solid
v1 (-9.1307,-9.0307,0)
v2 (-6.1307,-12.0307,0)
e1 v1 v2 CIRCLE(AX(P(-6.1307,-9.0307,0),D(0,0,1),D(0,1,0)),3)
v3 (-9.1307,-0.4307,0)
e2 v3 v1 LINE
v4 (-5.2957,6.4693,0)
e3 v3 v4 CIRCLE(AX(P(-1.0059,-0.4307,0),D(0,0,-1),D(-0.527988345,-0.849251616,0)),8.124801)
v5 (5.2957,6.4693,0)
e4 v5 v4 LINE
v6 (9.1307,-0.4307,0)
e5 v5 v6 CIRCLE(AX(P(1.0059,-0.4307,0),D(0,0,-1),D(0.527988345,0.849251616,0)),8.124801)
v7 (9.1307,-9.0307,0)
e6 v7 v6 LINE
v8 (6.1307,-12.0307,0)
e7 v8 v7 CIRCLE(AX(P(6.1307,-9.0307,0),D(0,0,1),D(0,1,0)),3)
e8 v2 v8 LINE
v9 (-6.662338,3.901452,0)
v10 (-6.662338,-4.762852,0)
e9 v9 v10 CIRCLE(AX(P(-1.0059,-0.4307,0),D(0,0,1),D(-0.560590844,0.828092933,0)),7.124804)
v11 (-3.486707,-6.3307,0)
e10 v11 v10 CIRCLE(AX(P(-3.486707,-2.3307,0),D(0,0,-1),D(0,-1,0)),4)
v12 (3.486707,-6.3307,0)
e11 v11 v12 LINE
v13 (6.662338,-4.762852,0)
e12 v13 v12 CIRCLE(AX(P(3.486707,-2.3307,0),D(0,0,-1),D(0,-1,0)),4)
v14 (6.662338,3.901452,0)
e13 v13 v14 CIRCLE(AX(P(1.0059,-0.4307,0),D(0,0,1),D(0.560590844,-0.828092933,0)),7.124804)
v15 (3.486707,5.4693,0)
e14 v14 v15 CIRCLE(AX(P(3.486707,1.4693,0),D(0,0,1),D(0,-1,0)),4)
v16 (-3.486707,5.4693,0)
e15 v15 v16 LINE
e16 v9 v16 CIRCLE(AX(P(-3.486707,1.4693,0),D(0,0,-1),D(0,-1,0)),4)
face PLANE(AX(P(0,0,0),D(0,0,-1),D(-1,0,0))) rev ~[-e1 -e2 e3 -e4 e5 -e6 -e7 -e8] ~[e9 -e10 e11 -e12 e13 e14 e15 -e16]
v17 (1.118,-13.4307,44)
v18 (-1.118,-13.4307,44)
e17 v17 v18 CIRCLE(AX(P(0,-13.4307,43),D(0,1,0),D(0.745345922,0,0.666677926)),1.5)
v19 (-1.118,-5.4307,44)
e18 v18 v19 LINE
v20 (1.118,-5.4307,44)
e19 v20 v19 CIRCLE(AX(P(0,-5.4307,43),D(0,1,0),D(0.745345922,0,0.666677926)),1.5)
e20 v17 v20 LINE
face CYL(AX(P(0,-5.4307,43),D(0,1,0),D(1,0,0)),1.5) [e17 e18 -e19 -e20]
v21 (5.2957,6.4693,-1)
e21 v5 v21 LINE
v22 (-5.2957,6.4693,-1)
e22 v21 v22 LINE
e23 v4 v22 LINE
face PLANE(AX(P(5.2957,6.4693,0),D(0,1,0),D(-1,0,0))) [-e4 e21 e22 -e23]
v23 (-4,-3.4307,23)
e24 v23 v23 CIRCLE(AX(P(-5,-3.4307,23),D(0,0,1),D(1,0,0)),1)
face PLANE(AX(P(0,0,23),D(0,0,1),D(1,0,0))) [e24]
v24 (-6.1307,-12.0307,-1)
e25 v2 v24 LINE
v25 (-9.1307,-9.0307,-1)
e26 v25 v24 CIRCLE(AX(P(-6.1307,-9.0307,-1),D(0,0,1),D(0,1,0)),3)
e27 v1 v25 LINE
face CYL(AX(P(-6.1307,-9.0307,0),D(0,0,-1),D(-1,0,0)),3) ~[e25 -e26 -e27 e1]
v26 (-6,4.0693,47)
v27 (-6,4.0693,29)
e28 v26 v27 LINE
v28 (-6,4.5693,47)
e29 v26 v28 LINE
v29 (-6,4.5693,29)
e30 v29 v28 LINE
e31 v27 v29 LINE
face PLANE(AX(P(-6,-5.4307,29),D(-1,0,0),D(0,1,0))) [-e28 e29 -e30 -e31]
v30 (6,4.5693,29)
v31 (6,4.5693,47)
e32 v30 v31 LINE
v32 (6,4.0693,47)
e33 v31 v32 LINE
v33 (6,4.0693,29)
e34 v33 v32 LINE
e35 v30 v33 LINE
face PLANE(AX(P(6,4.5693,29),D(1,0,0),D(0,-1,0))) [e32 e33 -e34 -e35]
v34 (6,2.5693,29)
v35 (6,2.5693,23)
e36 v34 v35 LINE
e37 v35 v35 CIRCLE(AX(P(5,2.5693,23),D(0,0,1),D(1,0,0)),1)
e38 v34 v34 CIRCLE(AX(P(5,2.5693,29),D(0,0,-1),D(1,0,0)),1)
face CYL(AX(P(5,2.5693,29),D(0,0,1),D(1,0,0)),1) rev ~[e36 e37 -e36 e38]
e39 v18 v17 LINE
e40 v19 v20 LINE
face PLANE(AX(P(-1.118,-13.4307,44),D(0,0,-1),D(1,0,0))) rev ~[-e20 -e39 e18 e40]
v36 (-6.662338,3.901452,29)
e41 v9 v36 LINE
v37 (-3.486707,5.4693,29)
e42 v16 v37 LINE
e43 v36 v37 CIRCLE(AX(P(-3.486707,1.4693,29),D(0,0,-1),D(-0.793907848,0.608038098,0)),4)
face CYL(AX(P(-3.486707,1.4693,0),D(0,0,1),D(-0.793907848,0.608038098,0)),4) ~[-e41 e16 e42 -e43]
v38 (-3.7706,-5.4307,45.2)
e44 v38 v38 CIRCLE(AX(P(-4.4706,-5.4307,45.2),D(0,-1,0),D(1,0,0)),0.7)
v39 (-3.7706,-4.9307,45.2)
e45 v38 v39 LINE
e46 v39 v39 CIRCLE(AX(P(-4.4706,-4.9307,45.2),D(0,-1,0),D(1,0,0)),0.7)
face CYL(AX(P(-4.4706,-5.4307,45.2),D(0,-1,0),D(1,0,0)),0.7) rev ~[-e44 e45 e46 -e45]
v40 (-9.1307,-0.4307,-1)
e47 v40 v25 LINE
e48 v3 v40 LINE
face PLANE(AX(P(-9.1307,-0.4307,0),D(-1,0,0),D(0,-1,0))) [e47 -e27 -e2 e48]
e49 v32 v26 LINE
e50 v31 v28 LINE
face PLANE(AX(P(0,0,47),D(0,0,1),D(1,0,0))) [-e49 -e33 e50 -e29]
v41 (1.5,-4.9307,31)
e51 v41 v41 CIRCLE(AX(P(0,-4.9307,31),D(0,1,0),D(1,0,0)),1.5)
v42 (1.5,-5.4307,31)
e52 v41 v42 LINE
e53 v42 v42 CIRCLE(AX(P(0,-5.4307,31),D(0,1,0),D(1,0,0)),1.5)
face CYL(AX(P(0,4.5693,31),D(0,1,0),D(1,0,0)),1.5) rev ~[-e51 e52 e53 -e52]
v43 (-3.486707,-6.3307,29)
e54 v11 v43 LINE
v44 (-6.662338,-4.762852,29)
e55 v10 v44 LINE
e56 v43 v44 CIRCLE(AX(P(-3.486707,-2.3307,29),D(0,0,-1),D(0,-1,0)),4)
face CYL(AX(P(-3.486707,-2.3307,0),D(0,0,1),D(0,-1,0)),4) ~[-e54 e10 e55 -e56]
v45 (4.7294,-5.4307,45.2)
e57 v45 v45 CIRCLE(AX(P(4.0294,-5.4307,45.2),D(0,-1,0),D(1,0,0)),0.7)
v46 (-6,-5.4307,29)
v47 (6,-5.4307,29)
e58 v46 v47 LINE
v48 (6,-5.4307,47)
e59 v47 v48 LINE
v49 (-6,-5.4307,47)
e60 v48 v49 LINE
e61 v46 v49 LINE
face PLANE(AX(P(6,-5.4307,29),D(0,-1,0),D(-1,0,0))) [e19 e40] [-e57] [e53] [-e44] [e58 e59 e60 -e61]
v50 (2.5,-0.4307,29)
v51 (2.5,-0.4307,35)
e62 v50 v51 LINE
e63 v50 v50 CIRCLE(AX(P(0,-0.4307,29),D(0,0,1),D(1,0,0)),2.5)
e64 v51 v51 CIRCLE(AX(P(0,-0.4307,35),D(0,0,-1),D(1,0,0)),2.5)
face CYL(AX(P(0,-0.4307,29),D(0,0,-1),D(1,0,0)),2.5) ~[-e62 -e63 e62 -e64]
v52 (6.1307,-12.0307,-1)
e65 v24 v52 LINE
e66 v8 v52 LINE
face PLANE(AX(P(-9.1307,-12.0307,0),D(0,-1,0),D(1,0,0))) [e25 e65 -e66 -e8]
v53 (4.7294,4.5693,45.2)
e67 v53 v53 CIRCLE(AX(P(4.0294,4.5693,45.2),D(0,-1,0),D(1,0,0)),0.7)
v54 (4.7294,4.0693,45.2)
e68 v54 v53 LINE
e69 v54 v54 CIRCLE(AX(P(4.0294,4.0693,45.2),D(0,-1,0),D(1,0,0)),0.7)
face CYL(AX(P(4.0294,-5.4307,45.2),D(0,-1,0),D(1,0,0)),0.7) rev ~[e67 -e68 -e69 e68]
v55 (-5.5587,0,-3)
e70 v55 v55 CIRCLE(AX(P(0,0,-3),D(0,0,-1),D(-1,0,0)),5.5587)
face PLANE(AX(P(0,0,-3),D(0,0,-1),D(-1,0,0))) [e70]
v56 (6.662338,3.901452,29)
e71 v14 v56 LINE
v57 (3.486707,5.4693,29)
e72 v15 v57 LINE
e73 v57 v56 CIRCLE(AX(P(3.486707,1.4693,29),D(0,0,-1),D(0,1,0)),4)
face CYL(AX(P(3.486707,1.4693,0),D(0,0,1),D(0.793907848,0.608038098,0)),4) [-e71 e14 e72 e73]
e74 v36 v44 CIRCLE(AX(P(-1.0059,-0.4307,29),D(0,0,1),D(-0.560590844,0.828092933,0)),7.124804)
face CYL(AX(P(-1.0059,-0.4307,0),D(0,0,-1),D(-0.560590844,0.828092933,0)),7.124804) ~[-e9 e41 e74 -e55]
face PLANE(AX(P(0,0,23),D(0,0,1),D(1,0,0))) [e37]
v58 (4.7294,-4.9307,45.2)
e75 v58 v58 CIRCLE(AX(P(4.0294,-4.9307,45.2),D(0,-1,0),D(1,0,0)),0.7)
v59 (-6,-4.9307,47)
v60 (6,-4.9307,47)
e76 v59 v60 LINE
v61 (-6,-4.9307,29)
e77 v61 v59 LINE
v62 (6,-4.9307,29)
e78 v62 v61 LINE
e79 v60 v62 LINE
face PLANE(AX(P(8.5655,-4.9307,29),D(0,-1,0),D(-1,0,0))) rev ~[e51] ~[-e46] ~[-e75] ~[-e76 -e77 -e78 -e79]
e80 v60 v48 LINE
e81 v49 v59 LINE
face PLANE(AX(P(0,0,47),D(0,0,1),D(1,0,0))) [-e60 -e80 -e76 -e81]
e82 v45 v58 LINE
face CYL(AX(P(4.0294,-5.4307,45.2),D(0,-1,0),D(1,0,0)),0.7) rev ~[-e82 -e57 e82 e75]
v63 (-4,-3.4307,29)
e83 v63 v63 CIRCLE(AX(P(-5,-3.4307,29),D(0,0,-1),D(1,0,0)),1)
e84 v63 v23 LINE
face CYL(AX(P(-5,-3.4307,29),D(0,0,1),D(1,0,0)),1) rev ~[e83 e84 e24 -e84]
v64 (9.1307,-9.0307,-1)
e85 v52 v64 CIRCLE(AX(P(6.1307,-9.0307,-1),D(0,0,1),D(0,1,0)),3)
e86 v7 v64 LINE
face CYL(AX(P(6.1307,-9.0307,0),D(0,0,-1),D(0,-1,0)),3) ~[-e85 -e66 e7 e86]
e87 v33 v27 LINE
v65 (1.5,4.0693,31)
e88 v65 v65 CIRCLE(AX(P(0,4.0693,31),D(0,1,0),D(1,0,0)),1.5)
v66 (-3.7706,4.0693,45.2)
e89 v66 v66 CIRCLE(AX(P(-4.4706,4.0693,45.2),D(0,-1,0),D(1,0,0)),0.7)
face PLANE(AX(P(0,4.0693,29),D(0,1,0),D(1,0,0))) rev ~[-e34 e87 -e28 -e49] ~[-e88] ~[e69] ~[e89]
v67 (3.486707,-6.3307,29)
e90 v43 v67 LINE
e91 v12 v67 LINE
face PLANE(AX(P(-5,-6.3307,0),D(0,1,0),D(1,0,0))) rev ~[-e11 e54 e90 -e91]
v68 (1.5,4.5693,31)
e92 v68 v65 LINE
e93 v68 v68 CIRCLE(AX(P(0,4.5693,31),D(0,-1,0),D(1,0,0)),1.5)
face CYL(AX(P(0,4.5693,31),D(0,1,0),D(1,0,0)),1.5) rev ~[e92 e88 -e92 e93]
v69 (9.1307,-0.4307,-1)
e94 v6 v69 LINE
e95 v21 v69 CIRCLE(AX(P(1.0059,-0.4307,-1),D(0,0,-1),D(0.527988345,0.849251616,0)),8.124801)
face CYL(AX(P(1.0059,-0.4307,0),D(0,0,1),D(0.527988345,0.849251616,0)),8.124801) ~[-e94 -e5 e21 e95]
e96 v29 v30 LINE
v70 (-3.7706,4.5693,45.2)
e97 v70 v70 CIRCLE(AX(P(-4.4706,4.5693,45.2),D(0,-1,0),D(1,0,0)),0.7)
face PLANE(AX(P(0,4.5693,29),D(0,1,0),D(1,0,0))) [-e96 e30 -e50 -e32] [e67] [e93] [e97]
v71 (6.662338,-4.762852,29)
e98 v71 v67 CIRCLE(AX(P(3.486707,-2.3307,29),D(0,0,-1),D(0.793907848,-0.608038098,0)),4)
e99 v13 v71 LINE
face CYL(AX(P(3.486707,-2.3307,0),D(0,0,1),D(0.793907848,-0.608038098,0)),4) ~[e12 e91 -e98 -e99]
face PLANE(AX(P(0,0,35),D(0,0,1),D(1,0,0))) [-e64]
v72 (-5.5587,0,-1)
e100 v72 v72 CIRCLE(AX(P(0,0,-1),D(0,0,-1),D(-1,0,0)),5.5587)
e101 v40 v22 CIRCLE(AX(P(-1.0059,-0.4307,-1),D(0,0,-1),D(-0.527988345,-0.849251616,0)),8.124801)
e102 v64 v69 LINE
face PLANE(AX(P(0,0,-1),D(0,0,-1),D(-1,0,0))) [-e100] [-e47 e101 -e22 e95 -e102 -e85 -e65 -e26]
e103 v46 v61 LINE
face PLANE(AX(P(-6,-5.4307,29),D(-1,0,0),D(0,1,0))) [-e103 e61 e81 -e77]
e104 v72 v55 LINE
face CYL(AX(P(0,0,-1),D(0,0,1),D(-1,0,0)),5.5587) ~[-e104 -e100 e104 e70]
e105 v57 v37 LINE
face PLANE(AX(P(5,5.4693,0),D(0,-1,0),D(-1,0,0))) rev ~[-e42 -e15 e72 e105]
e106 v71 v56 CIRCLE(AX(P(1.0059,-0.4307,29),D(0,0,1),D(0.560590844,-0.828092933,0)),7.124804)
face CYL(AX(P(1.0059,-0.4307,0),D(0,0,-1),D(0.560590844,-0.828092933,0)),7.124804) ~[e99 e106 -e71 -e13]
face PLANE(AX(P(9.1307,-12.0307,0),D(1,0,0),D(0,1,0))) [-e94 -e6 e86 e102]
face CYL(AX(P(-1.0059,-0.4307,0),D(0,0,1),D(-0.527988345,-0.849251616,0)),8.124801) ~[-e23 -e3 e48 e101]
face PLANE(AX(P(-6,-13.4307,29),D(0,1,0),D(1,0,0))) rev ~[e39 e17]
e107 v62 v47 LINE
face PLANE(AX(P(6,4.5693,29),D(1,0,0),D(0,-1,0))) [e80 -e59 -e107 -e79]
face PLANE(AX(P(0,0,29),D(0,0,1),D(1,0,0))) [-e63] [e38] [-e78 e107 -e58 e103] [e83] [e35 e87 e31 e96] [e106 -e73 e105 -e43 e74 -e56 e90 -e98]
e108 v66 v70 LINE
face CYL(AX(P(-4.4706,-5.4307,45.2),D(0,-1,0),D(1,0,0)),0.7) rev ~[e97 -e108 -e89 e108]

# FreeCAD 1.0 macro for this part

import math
import FreeCAD as App
import Part
import Sketcher

V = App.Vector
Q = App.Units.Quantity


def edges_at(feature, points):
    """Names of the edges that pass closest to the given points."""
    edges = feature.Shape.Edges
    near = lambda p: min(range(len(edges)), key=lambda i: edges[i].distToShape(Part.Vertex(*p))[0])
    return sorted({f"Edge{near(p) + 1}" for p in points})


def add_polygon(sketch, points):
    """Adds a closed chain of lines whose ends are joined by coincident constraints."""
    first, n = sketch.GeometryCount, len(points)
    for a, b in zip(points, points[1:] + points[:1]):
        sketch.addGeometry(Part.LineSegment(App.Vector(*a, 0), App.Vector(*b, 0)), False)
    for i in range(n):
        sketch.addConstraint(Sketcher.Constraint("Coincident", first + i, 2, first + (i + 1) % n, 1))

doc = App.newDocument("Part")
body = doc.addObject("PartDesign::Body", "Body")

# Sketch on XY plane
sketch1 = body.newObject("Sketcher::SketchObject", "Sketch")
sketch1.AttachmentSupport = (doc.getObject("XY_Plane"), [""])
sketch1.MapMode = "FlatFace"
sketch1.addGeometry(Part.LineSegment(V(5, 5.4693, 0), V(-5, 5.4693, 0)), False)
sketch1.addGeometry(Part.ArcOfCircle(Part.Circle(V(-1.0059, -0.4307, 0), V(0, 0, 1), 7.124804), math.radians(124.096668), math.radians(235.903332)), False)
sketch1.addGeometry(Part.LineSegment(V(-5, -6.3307, 0), V(5, -6.3307, 0)), False)
sketch1.addGeometry(Part.ArcOfCircle(Part.Circle(V(1.0059, -0.4307, 0), V(0, 0, 1), 7.124804), math.radians(-55.903332), math.radians(55.903332)), False)
sketch1.addConstraint(Sketcher.Constraint("Coincident", 0, 2, 1, 1))
sketch1.addConstraint(Sketcher.Constraint("Coincident", 1, 2, 2, 1))
sketch1.addConstraint(Sketcher.Constraint("Coincident", 2, 2, 3, 1))
sketch1.addConstraint(Sketcher.Constraint("Coincident", 3, 2, 0, 1))
sketch1.addConstraint(Sketcher.Constraint("Horizontal", 0))
sketch1.addConstraint(Sketcher.Constraint("Horizontal", 2))
sketch1.addConstraint(Sketcher.Constraint("Equal", 1, 3))
sketch1.addConstraint(Sketcher.Constraint("Symmetric", 1, 3, 3, 3, -2))
sketch1.addConstraint(Sketcher.Constraint("Vertical", 0, 2, 1, 2))
sketch1.addConstraint(Sketcher.Constraint("DistanceX", 0, 2, 0, 1, Q("10 mm")))
sketch1.addConstraint(Sketcher.Constraint("DistanceY", 1, 2, 0, 2, Q("11.8 mm")))
sketch1.addConstraint(Sketcher.Constraint("Radius", 1, Q("7.1248 mm")))
sketch1.addConstraint(Sketcher.Constraint("DistanceY", 1, 3, -1, 1, Q("0.4307 mm")))
pad1 = body.newObject("PartDesign::Pad", "Pad")
pad1.Profile = sketch1
pad1.Length = 29

# Sketch on XY plane
sketch2 = body.newObject("Sketcher::SketchObject", "Sketch001")
sketch2.AttachmentSupport = (doc.getObject("XY_Plane"), [""])
sketch2.MapMode = "FlatFace"
sketch2.AttachmentOffset = App.Placement(V(0, 0, 29), App.Rotation())
add_polygon(sketch2, [(6, -5.4307), (6, 4.5693), (-6, 4.5693), (-6, -5.4307)])  # lines 0-3
sketch2.addConstraint(Sketcher.Constraint("Vertical", 0))
sketch2.addConstraint(Sketcher.Constraint("Horizontal", 1))
sketch2.addConstraint(Sketcher.Constraint("Vertical", 2))
sketch2.addConstraint(Sketcher.Constraint("Horizontal", 3))
sketch2.addConstraint(Sketcher.Constraint("DistanceX", 1, 2, 1, 1, Q("12 mm")))
sketch2.addConstraint(Sketcher.Constraint("DistanceY", 0, 1, 0, 2, Q("10 mm")))
sketch2.addConstraint(Sketcher.Constraint("DistanceX", -1, 1, 0, 2, Q("6 mm")))
sketch2.addConstraint(Sketcher.Constraint("DistanceY", -1, 1, 0, 2, Q("4.5693 mm")))
pad2 = body.newObject("PartDesign::Pad", "Pad001")
pad2.Profile = sketch2
pad2.Length = 18

# Sketch on XY plane
sketch3 = body.newObject("Sketcher::SketchObject", "Sketch002")
sketch3.AttachmentSupport = (doc.getObject("XY_Plane"), [""])
sketch3.MapMode = "FlatFace"
sketch3.addGeometry(Part.ArcOfCircle(Part.Circle(V(-1.0059, -0.4307, 0), V(0, 0, 1), 8.124801), math.radians(121.869636), math.radians(180)), False)
sketch3.addGeometry(Part.LineSegment(V(-5.2957, 6.4693, 0), V(5.2957, 6.4693, 0)), False)
sketch3.addGeometry(Part.ArcOfCircle(Part.Circle(V(1.0059, -0.4307, 0), V(0, 0, 1), 8.124801), math.radians(0), math.radians(58.130364)), False)
sketch3.addGeometry(Part.LineSegment(V(9.1307, -0.4307, 0), V(9.1307, -12.0307, 0)), False)
sketch3.addGeometry(Part.LineSegment(V(9.1307, -12.0307, 0), V(-9.1307, -12.0307, 0)), False)
sketch3.addGeometry(Part.LineSegment(V(-9.1307, -12.0307, 0), V(-9.1307, -0.4307, 0)), False)
sketch3.addConstraint(Sketcher.Constraint("Coincident", 0, 1, 1, 1))
sketch3.addConstraint(Sketcher.Constraint("Coincident", 1, 2, 2, 2))
sketch3.addConstraint(Sketcher.Constraint("Tangent", 2, 1, 3, 1))
sketch3.addConstraint(Sketcher.Constraint("Coincident", 3, 2, 4, 1))
sketch3.addConstraint(Sketcher.Constraint("Coincident", 4, 2, 5, 1))
sketch3.addConstraint(Sketcher.Constraint("Tangent", 5, 2, 0, 2))
sketch3.addConstraint(Sketcher.Constraint("Horizontal", 1))
sketch3.addConstraint(Sketcher.Constraint("Vertical", 3))
sketch3.addConstraint(Sketcher.Constraint("Horizontal", 4))
sketch3.addConstraint(Sketcher.Constraint("Vertical", 5))
sketch3.addConstraint(Sketcher.Constraint("Equal", 0, 2))
sketch3.addConstraint(Sketcher.Constraint("Symmetric", 0, 3, 2, 3, -2))
sketch3.addConstraint(Sketcher.Constraint("DistanceY", 3, 2, 1, 2, Q("18.5 mm")))
sketch3.addConstraint(Sketcher.Constraint("DistanceY", 3, 2, 3, 1, Q("11.6 mm")))
sketch3.addConstraint(Sketcher.Constraint("Radius", 0, Q("8.1248 mm")))
sketch3.addConstraint(Sketcher.Constraint("DistanceX", 1, 1, 1, 2, Q("10.5914 mm")))
sketch3.addConstraint(Sketcher.Constraint("DistanceY", 0, 3, -1, 1, Q("0.4307 mm")))
pad3 = body.newObject("PartDesign::Pad", "Pad002")
pad3.Profile = sketch3
pad3.Length = 1
pad3.Reversed = True

# Sketch on XY plane
sketch4 = body.newObject("Sketcher::SketchObject", "Sketch003")
sketch4.AttachmentSupport = (doc.getObject("XY_Plane"), [""])
sketch4.MapMode = "FlatFace"
sketch4.AttachmentOffset = App.Placement(V(0, 0, -1), App.Rotation())
sketch4.addGeometry(Part.Circle(V(0, 0, 0), V(0, 0, 1), 5.5587), False)
sketch4.addConstraint(Sketcher.Constraint("Coincident", 0, 3, -1, 1))
sketch4.addConstraint(Sketcher.Constraint("Diameter", 0, Q("11.1174 mm")))
pad4 = body.newObject("PartDesign::Pad", "Pad003")
pad4.Profile = sketch4
pad4.Length = 2
pad4.Reversed = True

# Sketch on XZ plane
sketch5 = body.newObject("Sketcher::SketchObject", "Sketch004")
sketch5.AttachmentSupport = (doc.getObject("XZ_Plane"), [""])
sketch5.MapMode = "FlatFace"
sketch5.AttachmentOffset = App.Placement(V(0, 0, 5.4307), App.Rotation())
sketch5.addGeometry(Part.Circle(V(0, 43, 0), V(0, 0, 1), 1.5), False)
sketch5.addConstraint(Sketcher.Constraint("PointOnObject", 0, 3, -2))
sketch5.addConstraint(Sketcher.Constraint("Diameter", 0, Q("3 mm")))
sketch5.addConstraint(Sketcher.Constraint("DistanceY", -1, 1, 0, 3, Q("43 mm")))
pad5 = body.newObject("PartDesign::Pad", "Pad004")
pad5.Profile = sketch5
pad5.Length = 8

# Sketch on XZ plane
sketch6 = body.newObject("Sketcher::SketchObject", "Sketch005")
sketch6.AttachmentSupport = (doc.getObject("XZ_Plane"), [""])
sketch6.MapMode = "FlatFace"
sketch6.AttachmentOffset = App.Placement(V(0, 0, 13.4307), App.Rotation())
sketch6.addGeometry(Part.LineSegment(V(-1.118, 44, 0), V(1.118, 44, 0)), False)
sketch6.addGeometry(Part.ArcOfCircle(Part.Circle(V(0, 43, 0), V(0, 0, 1), 1.5), math.radians(41.81118), math.radians(138.18882)), False)
sketch6.addConstraint(Sketcher.Constraint("Coincident", 0, 1, 1, 2))
sketch6.addConstraint(Sketcher.Constraint("Coincident", 1, 1, 0, 2))
sketch6.addConstraint(Sketcher.Constraint("Horizontal", 0))
sketch6.addConstraint(Sketcher.Constraint("PointOnObject", 1, 3, -2))
sketch6.addConstraint(Sketcher.Constraint("Radius", 1, Q("1.5 mm")))
sketch6.addConstraint(Sketcher.Constraint("DistanceY", -1, 1, 1, 3, Q("43 mm")))
sketch6.addConstraint(Sketcher.Constraint("DistanceY", -1, 1, 0, 1, Q("44 mm")))
pocket1 = body.newObject("PartDesign::Pocket", "Pocket")
pocket1.Profile = sketch6
pocket1.Length = 8
doc.recompute()

fillet = body.newObject("PartDesign::Fillet", "Fillet")
fillet.Base = (pocket1, edges_at(pocket1, [
    (-5, 5.469, 14.5),
    (5, 5.469, 14.5),
    (-5, -6.331, 14.5),
    (5, -6.331, 14.5),
]))
fillet.Radius = 4
doc.recompute()

fillet2 = body.newObject("PartDesign::Fillet", "Fillet001")
fillet2.Base = (fillet, edges_at(fillet, [(-9.131, -12.031, -0.5), (9.131, -12.031, -0.5)]))
fillet2.Radius = 3

# Sketch on XZ plane
sketch7 = body.newObject("Sketcher::SketchObject", "Sketch006")
sketch7.AttachmentSupport = (doc.getObject("XZ_Plane"), [""])
sketch7.MapMode = "FlatFace"
sketch7.AttachmentOffset = App.Placement(V(0, 0, 5.4307), App.Rotation())
sketch7.addGeometry(Part.Circle(V(4.0294, 45.2, 0), V(0, 0, 1), 0.7), False)
sketch7.addGeometry(Part.Circle(V(-4.4706, 45.2, 0), V(0, 0, 1), 0.7), False)
sketch7.addConstraint(Sketcher.Constraint("Equal", 0, 1))
sketch7.addConstraint(Sketcher.Constraint("Horizontal", 0, 3, 1, 3))
sketch7.addConstraint(Sketcher.Constraint("Diameter", 0, Q("1.4 mm")))
sketch7.addConstraint(Sketcher.Constraint("DistanceX", 1, 3, 0, 3, Q("8.5 mm")))
sketch7.addConstraint(Sketcher.Constraint("DistanceY", -1, 1, 0, 3, Q("45.2 mm")))
sketch7.addConstraint(Sketcher.Constraint("DistanceX", -1, 1, 0, 3, Q("4.0294 mm")))
pocket2 = body.newObject("PartDesign::Pocket", "Pocket001")
pocket2.Profile = sketch7
pocket2.Length = 11.75

# Sketch on XZ plane
sketch8 = body.newObject("Sketcher::SketchObject", "Sketch007")
sketch8.AttachmentSupport = (doc.getObject("XZ_Plane"), [""])
sketch8.MapMode = "FlatFace"
sketch8.AttachmentOffset = App.Placement(V(0, 0, -4.5693), App.Rotation())
sketch8.addGeometry(Part.Circle(V(0, 31, 0), V(0, 0, 1), 1.5), False)
sketch8.addConstraint(Sketcher.Constraint("PointOnObject", 0, 3, -2))
sketch8.addConstraint(Sketcher.Constraint("Diameter", 0, Q("3 mm")))
sketch8.addConstraint(Sketcher.Constraint("DistanceY", -1, 1, 0, 3, Q("31 mm")))
pocket3 = body.newObject("PartDesign::Pocket", "Pocket002")
pocket3.Profile = sketch8
pocket3.Length = 23
pocket3.Reversed = True

# Sketch on XY plane
sketch9 = body.newObject("Sketcher::SketchObject", "Sketch008")
sketch9.AttachmentSupport = (doc.getObject("XY_Plane"), [""])
sketch9.MapMode = "FlatFace"
sketch9.AttachmentOffset = App.Placement(V(0, 0, 29), App.Rotation())
add_polygon(sketch9, [(8.5655, 4.0693), (-8.5655, 4.0693), (-8.5655, -4.9307), (8.5655, -4.9307)])  # lines 0-3
sketch9.addConstraint(Sketcher.Constraint("Horizontal", 0))
sketch9.addConstraint(Sketcher.Constraint("Vertical", 1))
sketch9.addConstraint(Sketcher.Constraint("Horizontal", 2))
sketch9.addConstraint(Sketcher.Constraint("Vertical", 3))
sketch9.addConstraint(Sketcher.Constraint("DistanceY", 1, 2, 1, 1, Q("9 mm")))
sketch9.addConstraint(Sketcher.Constraint("DistanceX", 0, 2, 0, 1, Q("17.131 mm")))
sketch9.addConstraint(Sketcher.Constraint("DistanceX", 0, 2, -1, 1, Q("8.5655 mm")))
sketch9.addConstraint(Sketcher.Constraint("DistanceY", -1, 1, 0, 2, Q("4.0693 mm")))
pocket4 = body.newObject("PartDesign::Pocket", "Pocket003")
pocket4.Profile = sketch9
pocket4.Length = 39.5
pocket4.Reversed = True

# Sketch on XY plane
sketch10 = body.newObject("Sketcher::SketchObject", "Sketch009")
sketch10.AttachmentSupport = (doc.getObject("XY_Plane"), [""])
sketch10.MapMode = "FlatFace"
sketch10.AttachmentOffset = App.Placement(V(0, 0, 29), App.Rotation())
sketch10.addGeometry(Part.Circle(V(0, -0.4307, 0), V(0, 0, 1), 2.5), False)
sketch10.addConstraint(Sketcher.Constraint("PointOnObject", 0, 3, -2))
sketch10.addConstraint(Sketcher.Constraint("Diameter", 0, Q("5 mm")))
sketch10.addConstraint(Sketcher.Constraint("DistanceY", 0, 3, -1, 1, Q("0.4307 mm")))
pad6 = body.newObject("PartDesign::Pad", "Pad005")
pad6.Profile = sketch10
pad6.Length = 6

# Sketch on XY plane
sketch11 = body.newObject("Sketcher::SketchObject", "Sketch010")
sketch11.AttachmentSupport = (doc.getObject("XY_Plane"), [""])
sketch11.MapMode = "FlatFace"
sketch11.AttachmentOffset = App.Placement(V(0, 0, 29), App.Rotation())
sketch11.addGeometry(Part.Circle(V(5, 2.5693, 0), V(0, 0, 1), 1), False)
sketch11.addGeometry(Part.Circle(V(-5, -3.4307, 0), V(0, 0, 1), 1), False)
sketch11.addConstraint(Sketcher.Constraint("Equal", 0, 1))
sketch11.addConstraint(Sketcher.Constraint("Diameter", 0, Q("2 mm")))
sketch11.addConstraint(Sketcher.Constraint("DistanceX", -1, 1, 0, 3, Q("5 mm")))
sketch11.addConstraint(Sketcher.Constraint("DistanceX", 1, 3, -1, 1, Q("5 mm")))
sketch11.addConstraint(Sketcher.Constraint("DistanceY", 1, 3, 0, 3, Q("6 mm")))
sketch11.addConstraint(Sketcher.Constraint("DistanceY", -1, 1, 0, 3, Q("2.5693 mm")))
pocket5 = body.newObject("PartDesign::Pocket", "Pocket004")
pocket5.Profile = sketch11
pocket5.Length = 6

doc.recompute()
